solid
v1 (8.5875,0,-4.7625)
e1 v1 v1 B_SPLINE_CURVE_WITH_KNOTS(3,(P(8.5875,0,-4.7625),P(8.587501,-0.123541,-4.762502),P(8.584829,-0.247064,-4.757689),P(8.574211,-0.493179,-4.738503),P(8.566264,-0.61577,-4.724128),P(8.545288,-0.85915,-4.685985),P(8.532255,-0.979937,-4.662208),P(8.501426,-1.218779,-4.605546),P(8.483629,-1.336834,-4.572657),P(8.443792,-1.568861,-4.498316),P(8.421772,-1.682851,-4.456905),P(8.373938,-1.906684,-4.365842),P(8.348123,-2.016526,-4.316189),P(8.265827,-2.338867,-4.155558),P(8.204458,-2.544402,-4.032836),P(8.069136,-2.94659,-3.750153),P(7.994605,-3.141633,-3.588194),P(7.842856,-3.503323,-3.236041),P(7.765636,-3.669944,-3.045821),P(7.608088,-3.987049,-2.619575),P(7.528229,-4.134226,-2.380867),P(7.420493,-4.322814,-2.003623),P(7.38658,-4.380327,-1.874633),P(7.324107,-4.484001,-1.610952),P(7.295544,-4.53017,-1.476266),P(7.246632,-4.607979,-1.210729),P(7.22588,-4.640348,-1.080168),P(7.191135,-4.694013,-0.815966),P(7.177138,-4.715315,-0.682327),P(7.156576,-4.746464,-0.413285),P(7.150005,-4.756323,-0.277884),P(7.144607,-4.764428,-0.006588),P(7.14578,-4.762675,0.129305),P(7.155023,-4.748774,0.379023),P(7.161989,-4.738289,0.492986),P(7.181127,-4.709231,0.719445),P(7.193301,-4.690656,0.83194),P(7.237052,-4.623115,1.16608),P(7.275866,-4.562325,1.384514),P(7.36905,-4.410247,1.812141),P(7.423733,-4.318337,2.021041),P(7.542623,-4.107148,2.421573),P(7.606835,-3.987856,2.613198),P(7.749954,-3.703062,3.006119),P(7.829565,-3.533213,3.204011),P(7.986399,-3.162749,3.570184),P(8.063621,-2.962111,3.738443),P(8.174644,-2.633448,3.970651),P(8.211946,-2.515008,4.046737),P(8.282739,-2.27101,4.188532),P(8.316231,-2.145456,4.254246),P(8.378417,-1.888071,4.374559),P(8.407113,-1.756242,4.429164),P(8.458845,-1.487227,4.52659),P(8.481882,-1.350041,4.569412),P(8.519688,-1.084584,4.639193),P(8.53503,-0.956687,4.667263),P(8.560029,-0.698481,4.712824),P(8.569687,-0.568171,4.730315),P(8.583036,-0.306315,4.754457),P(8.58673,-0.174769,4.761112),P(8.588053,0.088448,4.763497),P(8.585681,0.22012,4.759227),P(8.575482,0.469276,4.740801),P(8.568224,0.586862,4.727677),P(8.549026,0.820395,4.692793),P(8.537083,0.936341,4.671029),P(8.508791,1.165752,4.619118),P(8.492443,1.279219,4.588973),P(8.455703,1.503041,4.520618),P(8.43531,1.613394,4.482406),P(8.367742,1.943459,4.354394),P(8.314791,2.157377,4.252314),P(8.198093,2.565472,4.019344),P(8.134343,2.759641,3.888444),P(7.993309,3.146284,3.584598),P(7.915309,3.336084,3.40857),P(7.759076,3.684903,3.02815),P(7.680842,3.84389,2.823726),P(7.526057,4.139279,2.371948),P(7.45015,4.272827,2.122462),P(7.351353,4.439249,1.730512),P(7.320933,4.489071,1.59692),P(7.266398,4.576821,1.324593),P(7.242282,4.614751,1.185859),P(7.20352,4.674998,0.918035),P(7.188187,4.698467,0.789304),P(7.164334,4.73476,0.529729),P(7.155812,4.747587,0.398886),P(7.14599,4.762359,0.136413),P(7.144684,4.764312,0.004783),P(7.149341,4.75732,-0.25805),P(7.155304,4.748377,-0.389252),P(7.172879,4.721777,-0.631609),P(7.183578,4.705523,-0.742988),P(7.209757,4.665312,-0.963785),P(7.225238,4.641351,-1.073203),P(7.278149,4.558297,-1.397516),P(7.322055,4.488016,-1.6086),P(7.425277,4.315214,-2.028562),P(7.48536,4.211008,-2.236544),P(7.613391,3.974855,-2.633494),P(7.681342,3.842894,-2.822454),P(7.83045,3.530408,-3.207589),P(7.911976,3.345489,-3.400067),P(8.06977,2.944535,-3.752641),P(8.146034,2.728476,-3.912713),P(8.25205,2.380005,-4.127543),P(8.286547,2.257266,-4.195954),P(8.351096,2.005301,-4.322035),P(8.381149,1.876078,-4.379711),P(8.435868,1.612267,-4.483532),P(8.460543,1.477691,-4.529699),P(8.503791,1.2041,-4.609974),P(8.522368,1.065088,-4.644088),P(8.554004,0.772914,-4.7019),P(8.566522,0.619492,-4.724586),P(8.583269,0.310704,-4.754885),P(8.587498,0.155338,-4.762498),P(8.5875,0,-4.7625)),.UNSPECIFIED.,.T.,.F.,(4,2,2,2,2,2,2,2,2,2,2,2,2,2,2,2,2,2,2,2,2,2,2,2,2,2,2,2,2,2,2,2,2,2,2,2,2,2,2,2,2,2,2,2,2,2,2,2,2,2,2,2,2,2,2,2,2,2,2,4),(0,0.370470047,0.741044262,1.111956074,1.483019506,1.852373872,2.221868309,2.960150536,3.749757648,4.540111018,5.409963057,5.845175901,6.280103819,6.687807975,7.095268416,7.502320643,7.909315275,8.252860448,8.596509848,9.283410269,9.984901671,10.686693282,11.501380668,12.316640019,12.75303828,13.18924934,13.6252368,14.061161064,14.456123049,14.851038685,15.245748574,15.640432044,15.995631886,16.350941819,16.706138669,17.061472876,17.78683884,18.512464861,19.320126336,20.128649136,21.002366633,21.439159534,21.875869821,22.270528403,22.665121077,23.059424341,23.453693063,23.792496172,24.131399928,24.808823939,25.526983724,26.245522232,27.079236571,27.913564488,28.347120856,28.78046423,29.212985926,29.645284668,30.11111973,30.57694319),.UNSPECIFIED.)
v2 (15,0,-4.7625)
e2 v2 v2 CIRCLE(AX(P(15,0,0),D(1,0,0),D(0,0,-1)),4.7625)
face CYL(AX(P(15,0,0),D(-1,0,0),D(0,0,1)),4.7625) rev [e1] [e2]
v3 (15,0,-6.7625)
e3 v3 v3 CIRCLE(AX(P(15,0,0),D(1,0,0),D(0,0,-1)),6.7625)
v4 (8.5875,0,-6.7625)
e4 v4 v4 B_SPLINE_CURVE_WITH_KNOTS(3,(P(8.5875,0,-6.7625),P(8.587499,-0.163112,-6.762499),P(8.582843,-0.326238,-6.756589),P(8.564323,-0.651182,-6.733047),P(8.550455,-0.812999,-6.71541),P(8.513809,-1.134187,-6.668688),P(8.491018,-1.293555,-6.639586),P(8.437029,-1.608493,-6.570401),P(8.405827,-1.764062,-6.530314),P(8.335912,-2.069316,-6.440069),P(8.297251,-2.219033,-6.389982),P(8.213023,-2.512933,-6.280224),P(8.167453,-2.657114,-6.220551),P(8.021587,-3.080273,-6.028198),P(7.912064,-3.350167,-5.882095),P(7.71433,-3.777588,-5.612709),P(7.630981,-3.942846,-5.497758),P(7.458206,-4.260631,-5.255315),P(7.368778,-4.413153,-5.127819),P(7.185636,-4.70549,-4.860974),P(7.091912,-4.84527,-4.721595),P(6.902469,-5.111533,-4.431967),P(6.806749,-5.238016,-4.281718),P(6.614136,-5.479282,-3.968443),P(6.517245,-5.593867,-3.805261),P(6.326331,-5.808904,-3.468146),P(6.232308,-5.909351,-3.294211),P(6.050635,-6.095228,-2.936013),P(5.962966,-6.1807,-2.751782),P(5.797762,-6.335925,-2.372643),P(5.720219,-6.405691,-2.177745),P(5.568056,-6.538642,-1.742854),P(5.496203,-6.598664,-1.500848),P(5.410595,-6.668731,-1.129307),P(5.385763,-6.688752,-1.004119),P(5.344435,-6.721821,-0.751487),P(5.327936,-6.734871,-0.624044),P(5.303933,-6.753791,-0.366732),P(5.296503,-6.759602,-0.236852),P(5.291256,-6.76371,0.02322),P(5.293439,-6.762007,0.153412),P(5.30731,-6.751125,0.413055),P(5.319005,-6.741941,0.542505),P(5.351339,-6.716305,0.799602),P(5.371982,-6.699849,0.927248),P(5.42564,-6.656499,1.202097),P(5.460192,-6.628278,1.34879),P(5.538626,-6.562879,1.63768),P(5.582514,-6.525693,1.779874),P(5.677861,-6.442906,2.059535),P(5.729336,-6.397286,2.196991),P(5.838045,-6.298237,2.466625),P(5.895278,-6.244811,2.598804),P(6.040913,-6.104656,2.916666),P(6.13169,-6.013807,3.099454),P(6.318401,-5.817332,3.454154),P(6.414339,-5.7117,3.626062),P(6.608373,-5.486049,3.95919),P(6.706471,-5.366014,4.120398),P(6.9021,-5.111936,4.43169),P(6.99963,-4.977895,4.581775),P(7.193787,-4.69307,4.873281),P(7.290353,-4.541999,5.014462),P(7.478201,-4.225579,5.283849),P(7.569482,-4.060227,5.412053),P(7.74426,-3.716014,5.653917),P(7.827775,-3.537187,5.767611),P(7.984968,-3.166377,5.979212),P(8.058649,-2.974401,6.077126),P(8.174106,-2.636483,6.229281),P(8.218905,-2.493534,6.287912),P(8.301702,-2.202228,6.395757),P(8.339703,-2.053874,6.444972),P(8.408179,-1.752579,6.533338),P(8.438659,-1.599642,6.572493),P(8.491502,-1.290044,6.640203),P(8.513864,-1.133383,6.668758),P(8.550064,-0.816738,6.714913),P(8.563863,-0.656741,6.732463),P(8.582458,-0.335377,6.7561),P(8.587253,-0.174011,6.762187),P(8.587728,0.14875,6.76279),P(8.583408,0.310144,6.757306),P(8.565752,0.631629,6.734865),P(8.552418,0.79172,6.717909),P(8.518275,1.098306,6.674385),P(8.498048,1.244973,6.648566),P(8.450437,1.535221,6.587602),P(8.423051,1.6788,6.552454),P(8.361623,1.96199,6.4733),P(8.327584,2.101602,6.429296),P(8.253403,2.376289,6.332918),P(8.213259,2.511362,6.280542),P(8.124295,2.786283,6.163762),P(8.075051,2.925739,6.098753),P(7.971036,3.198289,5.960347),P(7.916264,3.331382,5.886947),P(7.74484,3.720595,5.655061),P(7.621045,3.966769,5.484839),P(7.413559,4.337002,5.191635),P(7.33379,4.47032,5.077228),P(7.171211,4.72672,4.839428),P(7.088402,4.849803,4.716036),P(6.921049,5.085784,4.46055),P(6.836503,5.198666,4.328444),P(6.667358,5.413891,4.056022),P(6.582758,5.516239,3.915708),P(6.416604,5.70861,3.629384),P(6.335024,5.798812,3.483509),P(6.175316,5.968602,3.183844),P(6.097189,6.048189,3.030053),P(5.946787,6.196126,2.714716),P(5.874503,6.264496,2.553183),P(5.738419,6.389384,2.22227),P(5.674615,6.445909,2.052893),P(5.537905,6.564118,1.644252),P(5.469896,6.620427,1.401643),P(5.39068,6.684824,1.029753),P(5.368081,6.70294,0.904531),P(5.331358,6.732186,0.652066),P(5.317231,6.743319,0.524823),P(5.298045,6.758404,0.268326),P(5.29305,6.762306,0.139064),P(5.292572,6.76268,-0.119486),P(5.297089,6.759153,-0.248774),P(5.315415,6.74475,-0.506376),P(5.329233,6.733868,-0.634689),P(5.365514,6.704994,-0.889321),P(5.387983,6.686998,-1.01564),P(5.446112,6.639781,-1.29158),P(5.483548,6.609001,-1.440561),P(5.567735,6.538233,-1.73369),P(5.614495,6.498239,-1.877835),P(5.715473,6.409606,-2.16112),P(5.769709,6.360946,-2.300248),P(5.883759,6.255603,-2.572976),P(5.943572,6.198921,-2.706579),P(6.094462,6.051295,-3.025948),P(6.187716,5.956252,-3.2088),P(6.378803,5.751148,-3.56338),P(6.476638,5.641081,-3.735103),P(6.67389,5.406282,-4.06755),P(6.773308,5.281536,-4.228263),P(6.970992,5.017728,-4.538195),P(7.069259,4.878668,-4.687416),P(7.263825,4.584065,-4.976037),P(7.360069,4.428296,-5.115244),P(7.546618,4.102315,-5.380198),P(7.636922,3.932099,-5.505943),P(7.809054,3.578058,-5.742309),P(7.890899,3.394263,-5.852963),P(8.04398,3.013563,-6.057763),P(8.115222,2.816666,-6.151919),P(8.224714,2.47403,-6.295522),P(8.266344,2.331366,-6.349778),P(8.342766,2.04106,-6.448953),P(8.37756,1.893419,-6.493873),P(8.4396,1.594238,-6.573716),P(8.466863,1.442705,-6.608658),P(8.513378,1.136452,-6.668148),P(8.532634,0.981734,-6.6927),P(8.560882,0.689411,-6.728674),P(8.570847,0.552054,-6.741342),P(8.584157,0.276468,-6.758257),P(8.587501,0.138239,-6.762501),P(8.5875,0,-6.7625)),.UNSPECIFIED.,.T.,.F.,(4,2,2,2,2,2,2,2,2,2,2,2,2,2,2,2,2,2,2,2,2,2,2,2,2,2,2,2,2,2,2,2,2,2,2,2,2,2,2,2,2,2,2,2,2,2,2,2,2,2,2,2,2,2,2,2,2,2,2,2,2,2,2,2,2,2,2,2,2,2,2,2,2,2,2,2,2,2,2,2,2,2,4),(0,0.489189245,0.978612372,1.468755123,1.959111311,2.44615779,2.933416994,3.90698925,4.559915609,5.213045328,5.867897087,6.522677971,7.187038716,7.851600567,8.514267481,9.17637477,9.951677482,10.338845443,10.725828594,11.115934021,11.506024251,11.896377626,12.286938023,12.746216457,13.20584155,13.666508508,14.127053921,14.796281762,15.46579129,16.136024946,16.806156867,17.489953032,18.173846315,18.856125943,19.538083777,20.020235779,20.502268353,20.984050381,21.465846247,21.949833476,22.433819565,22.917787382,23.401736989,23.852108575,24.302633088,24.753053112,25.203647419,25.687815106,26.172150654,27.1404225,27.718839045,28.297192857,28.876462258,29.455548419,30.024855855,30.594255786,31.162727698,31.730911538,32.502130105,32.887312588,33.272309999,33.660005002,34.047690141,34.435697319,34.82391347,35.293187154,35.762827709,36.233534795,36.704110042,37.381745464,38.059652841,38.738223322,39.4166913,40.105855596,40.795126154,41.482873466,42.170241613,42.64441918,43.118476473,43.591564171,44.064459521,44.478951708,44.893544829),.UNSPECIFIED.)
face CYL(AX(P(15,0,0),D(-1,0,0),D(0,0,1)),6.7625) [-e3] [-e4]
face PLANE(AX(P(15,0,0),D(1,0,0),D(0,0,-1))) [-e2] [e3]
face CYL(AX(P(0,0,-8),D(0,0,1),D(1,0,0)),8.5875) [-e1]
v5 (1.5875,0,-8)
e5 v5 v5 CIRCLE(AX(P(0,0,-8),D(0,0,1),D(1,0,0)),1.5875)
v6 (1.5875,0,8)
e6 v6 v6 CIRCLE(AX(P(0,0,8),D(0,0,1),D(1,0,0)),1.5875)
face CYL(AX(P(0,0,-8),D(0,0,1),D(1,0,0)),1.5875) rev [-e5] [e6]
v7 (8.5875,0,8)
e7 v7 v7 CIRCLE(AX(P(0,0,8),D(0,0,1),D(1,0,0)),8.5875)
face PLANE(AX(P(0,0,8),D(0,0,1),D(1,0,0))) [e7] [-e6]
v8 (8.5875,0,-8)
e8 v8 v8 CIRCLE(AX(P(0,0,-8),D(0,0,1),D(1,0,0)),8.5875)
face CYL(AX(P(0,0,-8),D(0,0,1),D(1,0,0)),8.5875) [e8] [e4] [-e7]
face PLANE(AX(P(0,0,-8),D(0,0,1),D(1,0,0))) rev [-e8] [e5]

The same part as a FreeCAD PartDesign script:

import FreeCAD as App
import Part
import Sketcher
Q = App.Units.Quantity

doc = App.newDocument("Part")
body = doc.addObject("PartDesign::Body", "Body")

sketch1 = body.newObject("Sketcher::SketchObject", "Sketch")
sketch1.AttachmentSupport = (doc.getObject("XY_Plane"), [""])
sketch1.MapMode = "FlatFace"
sketch1.addGeometry(Part.Circle(App.Vector(0, 0, 0), App.Vector(0, 0, 1), 8.6), False)
sketch1.addGeometry(Part.Circle(App.Vector(0, 0, 0), App.Vector(0, 0, 1), 1.6), False)
sketch1.addConstraint(Sketcher.Constraint("Coincident", 0, 3, -1, 1))
sketch1.addConstraint(Sketcher.Constraint("Coincident", 1, 3, -1, 1))
sketch1.addConstraint(Sketcher.Constraint("Diameter", 0, Q("17.175 mm")))
sketch1.addConstraint(Sketcher.Constraint("Diameter", 1, Q("3.175 mm")))
pad1 = body.newObject("PartDesign::Pad", "Pad")
pad1.Profile = sketch1
pad1.Type = "TwoLengths"
pad1.Length = 8
pad1.Length2 = 8

sketch2 = body.newObject("Sketcher::SketchObject", "Sketch001")
sketch2.AttachmentSupport = (doc.getObject("YZ_Plane"), [""])
sketch2.MapMode = "FlatFace"
sketch2.addGeometry(Part.Circle(App.Vector(0, 0, 0), App.Vector(0, 0, 1), 6.8), False)
sketch2.addGeometry(Part.Circle(App.Vector(0, 0, 0), App.Vector(0, 0, 1), 4.8), False)
sketch2.addConstraint(Sketcher.Constraint("Coincident", 0, 3, -1, 1))
sketch2.addConstraint(Sketcher.Constraint("Coincident", 1, 3, -1, 1))
sketch2.addConstraint(Sketcher.Constraint("Diameter", 0, Q("13.525 mm")))
sketch2.addConstraint(Sketcher.Constraint("Diameter", 1, Q("9.525 mm")))
pad2 = body.newObject("PartDesign::Pad", "Pad001")
pad2.Profile = sketch2
pad2.Length = 15

sketch3 = body.newObject("Sketcher::SketchObject", "Sketch002")
sketch3.AttachmentSupport = (doc.getObject("XY_Plane"), [""])
sketch3.MapMode = "FlatFace"
sketch3.addGeometry(Part.Circle(App.Vector(0, 0, 0), App.Vector(0, 0, 1), 1.6), False)
sketch3.addConstraint(Sketcher.Constraint("Coincident", 0, 3, -1, 1))
sketch3.addConstraint(Sketcher.Constraint("Diameter", 0, Q("3.175 mm")))
pocket1 = body.newObject("PartDesign::Pocket", "Pocket")
pocket1.Profile = sketch3
pocket1.Type = "ThroughAll"
pocket1.Midplane = True

doc.recompute()
